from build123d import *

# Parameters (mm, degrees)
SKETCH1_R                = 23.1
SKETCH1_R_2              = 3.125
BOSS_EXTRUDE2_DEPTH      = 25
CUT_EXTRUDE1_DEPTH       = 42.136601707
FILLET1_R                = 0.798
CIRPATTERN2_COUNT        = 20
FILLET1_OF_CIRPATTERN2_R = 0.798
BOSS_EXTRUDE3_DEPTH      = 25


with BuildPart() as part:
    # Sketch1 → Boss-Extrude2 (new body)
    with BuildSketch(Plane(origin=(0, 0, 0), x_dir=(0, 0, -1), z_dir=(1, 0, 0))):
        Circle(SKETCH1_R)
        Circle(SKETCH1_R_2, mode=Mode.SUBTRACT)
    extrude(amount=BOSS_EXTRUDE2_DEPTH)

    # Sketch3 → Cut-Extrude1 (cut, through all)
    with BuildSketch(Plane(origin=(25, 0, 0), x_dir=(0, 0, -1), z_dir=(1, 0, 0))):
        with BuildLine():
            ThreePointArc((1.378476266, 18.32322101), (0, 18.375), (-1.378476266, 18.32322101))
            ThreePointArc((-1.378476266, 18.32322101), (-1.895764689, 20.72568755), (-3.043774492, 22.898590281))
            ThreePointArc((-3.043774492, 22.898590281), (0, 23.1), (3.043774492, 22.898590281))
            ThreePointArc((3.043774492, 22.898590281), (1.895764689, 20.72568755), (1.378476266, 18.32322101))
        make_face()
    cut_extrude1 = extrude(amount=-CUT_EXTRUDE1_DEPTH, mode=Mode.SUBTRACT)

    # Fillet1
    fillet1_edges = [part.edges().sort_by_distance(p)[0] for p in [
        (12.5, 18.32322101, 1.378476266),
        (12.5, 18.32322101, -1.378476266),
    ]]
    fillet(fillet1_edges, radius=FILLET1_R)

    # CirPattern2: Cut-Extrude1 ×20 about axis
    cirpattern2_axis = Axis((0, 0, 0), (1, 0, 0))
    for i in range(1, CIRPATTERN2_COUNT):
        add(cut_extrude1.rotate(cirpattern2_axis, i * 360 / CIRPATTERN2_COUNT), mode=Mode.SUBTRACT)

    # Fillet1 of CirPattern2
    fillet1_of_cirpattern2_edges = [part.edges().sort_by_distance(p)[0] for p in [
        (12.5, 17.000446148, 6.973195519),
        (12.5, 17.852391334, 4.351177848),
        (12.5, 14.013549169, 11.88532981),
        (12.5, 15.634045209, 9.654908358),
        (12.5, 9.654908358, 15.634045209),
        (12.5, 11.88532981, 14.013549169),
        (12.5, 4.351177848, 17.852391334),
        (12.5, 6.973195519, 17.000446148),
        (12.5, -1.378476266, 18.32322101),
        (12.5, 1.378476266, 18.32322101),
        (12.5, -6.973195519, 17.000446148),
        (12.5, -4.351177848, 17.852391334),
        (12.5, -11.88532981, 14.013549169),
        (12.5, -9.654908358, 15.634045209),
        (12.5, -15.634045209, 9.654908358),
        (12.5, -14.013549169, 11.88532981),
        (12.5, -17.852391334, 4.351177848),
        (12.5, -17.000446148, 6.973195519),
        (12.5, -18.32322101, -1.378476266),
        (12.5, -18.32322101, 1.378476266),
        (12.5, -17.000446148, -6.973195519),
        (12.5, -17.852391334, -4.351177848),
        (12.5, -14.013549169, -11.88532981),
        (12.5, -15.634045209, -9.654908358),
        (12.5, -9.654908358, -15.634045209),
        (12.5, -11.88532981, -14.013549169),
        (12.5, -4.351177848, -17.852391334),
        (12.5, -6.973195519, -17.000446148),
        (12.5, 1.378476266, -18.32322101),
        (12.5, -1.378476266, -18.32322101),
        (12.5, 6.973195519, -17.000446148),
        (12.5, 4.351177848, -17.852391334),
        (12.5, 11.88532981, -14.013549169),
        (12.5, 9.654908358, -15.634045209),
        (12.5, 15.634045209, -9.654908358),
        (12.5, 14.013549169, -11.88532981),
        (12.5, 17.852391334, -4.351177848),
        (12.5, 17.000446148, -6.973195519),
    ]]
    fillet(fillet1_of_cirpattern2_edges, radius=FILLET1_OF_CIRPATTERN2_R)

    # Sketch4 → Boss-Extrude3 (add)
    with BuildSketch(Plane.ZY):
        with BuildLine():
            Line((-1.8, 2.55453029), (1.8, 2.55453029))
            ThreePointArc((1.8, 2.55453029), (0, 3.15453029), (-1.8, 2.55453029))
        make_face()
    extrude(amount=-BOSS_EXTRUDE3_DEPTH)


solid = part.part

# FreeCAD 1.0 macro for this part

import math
import FreeCAD as App
import Part
import Sketcher
Q = App.Units.Quantity


def edges_at(feature, points):
    """Names of the edges that pass closest to the given points."""
    edges = feature.Shape.Edges
    near = lambda p: min(range(len(edges)), key=lambda i: edges[i].distToShape(Part.Vertex(*p))[0])
    return sorted({f"Edge{near(p) + 1}" for p in points})

doc = App.newDocument("Part")
body = doc.addObject("PartDesign::Body", "Body")

# Sketch on YZ plane
sketch1 = doc.addObject("Sketcher::SketchObject", "Sketch")
body.addObject(sketch1)
sketch1.AttachmentSupport = (doc.YZ_Plane, [""])
sketch1.MapMode = "FlatFace"
sketch1.addGeometry(Part.Circle(App.Vector(0, 0, 0), App.Vector(0, 0, 1), 23.1), False)
sketch1.addGeometry(Part.Circle(App.Vector(0, 0, 0), App.Vector(0, 0, 1), 3.125), False)
sketch1.addConstraint(Sketcher.Constraint("Coincident", 0, 3, -1, 1))
sketch1.addConstraint(Sketcher.Constraint("Coincident", 1, 3, -1, 1))
sketch1.addConstraint(Sketcher.Constraint("Diameter", 0, Q("46.2 mm")))
sketch1.addConstraint(Sketcher.Constraint("Diameter", 1, Q("6.25 mm")))
pad1 = doc.addObject("PartDesign::Pad", "Pad")
body.addObject(pad1)
pad1.Profile = sketch1
pad1.Length = 25

# Sketch on YZ plane
sketch2 = doc.addObject("Sketcher::SketchObject", "Sketch001")
body.addObject(sketch2)
sketch2.AttachmentSupport = (doc.YZ_Plane, [""])
sketch2.MapMode = "FlatFace"
sketch2.AttachmentOffset = App.Placement(App.Vector(0, 0, 25), App.Rotation())
sketch2.addGeometry(Part.ArcOfCircle(Part.Circle(App.Vector(0, 0, 0), App.Vector(0, 0, 1), 18.375), math.radians(-4.302321), math.radians(4.302321)), False)
sketch2.addGeometry(Part.ArcOfCircle(Part.Circle(App.Vector(17.648201, -10.351088, 0), App.Vector(0, 0, 1), 8.997967), math.radians(54.302321), math.radians(85.697679)), False)
sketch2.addGeometry(Part.ArcOfCircle(Part.Circle(App.Vector(0, 0, 0), App.Vector(0, 0, 1), 23.1), math.radians(-7.571604), math.radians(7.571604)), False)
sketch2.addGeometry(Part.ArcOfCircle(Part.Circle(App.Vector(17.648201, 10.351088, 0), App.Vector(0, 0, 1), 8.997967), math.radians(-85.697679), math.radians(-54.302321)), False)
sketch2.addConstraint(Sketcher.Constraint("Coincident", 0, 1, 1, 2))
sketch2.addConstraint(Sketcher.Constraint("Coincident", 1, 1, 2, 1))
sketch2.addConstraint(Sketcher.Constraint("Coincident", 2, 2, 3, 2))
sketch2.addConstraint(Sketcher.Constraint("Coincident", 3, 1, 0, 2))
sketch2.addConstraint(Sketcher.Constraint("Coincident", 0, 3, -1, 1))
sketch2.addConstraint(Sketcher.Constraint("Coincident", 2, 3, -1, 1))
sketch2.addConstraint(Sketcher.Constraint("Equal", 1, 3))
sketch2.addConstraint(Sketcher.Constraint("Symmetric", 1, 3, 3, 3, -1))
sketch2.addConstraint(Sketcher.Constraint("Radius", 2, Q("23.1 mm")))
sketch2.addConstraint(Sketcher.Constraint("Radius", 0, Q("18.375 mm")))
sketch2.addConstraint(Sketcher.Constraint("Radius", 1, Q("8.997967 mm")))
sketch2.addConstraint(Sketcher.Constraint("DistanceX", -1, 1, 1, 3, Q("17.648201 mm")))
sketch2.addConstraint(Sketcher.Constraint("DistanceY", 1, 1, 0, 1, Q("1.665298 mm")))
pocket1 = doc.addObject("PartDesign::Pocket", "Pocket")
body.addObject(pocket1)
pocket1.Profile = sketch2
pocket1.Type = "ThroughAll"
doc.recompute()

fillet = doc.addObject("PartDesign::Fillet", "Fillet")
body.addObject(fillet)
fillet.Base = (pocket1, edges_at(pocket1, [(12.5, 18.323, 1.378), (12.5, 18.323, -1.378)]))
fillet.Radius = 0.798
doc.recompute()

polarpattern = doc.addObject("PartDesign::PolarPattern", "PolarPattern")
body.addObject(polarpattern)
polarpattern.Originals = [pocket1]
polarpattern.Axis = (doc.X_Axis, [""])
polarpattern.Angle = 360
polarpattern.Occurrences = 20
body.Tip = polarpattern
doc.recompute()

fillet2 = doc.addObject("PartDesign::Fillet", "Fillet001")
body.addObject(fillet2)
fillet2.Base = (polarpattern, edges_at(polarpattern, [
    (12.5, 17, 6.973),
    (12.5, 17.852, 4.351),
    (12.5, 14.014, 11.885),
    (12.5, 15.634, 9.655),
    (12.5, 9.655, 15.634),
    (12.5, 11.885, 14.014),
    (12.5, 4.351, 17.852),
    (12.5, 6.973, 17),
    (12.5, -1.378, 18.323),
    (12.5, 1.378, 18.323),
    (12.5, -6.973, 17),
    (12.5, -4.351, 17.852),
    (12.5, -11.885, 14.014),
    (12.5, -9.655, 15.634),
    (12.5, -15.634, 9.655),
    (12.5, -14.014, 11.885),
    (12.5, -17.852, 4.351),
    (12.5, -17, 6.973),
    (12.5, -18.323, -1.378),
    (12.5, -18.323, 1.378),
    (12.5, -17, -6.973),
    (12.5, -17.852, -4.351),
    (12.5, -14.014, -11.885),
    (12.5, -15.634, -9.655),
    (12.5, -9.655, -15.634),
    (12.5, -11.885, -14.014),
    (12.5, -4.351, -17.852),
    (12.5, -6.973, -17),
    (12.5, 1.378, -18.323),
    (12.5, -1.378, -18.323),
    (12.5, 6.973, -17),
    (12.5, 4.351, -17.852),
    (12.5, 11.885, -14.014),
    (12.5, 9.655, -15.634),
    (12.5, 15.634, -9.655),
    (12.5, 14.014, -11.885),
    (12.5, 17.852, -4.351),
    (12.5, 17, -6.973),
]))
fillet2.Radius = 0.798

# Sketch on YZ plane
sketch3 = doc.addObject("Sketcher::SketchObject", "Sketch002")
body.addObject(sketch3)
sketch3.AttachmentSupport = (doc.YZ_Plane, [""])
sketch3.MapMode = "FlatFace"
sketch3.addGeometry(Part.LineSegment(App.Vector(2.55453, -1.8, 0), App.Vector(2.55453, 1.8, 0)), False)
sketch3.addGeometry(Part.ArcOfCircle(Part.Circle(App.Vector(0.15453, 0, 0), App.Vector(0, 0, 1), 3), math.radians(-36.869898), math.radians(36.869898)), False)
sketch3.addConstraint(Sketcher.Constraint("Coincident", 0, 1, 1, 1))
sketch3.addConstraint(Sketcher.Constraint("Coincident", 1, 2, 0, 2))
sketch3.addConstraint(Sketcher.Constraint("Vertical", 0))
sketch3.addConstraint(Sketcher.Constraint("PointOnObject", 1, 3, -1))
sketch3.addConstraint(Sketcher.Constraint("Radius", 1, Q("3 mm")))
sketch3.addConstraint(Sketcher.Constraint("DistanceY", 0, 1, 0, 2, Q("3.6 mm")))
sketch3.addConstraint(Sketcher.Constraint("DistanceX", -1, 1, 1, 3, Q("0.15453 mm")))
pad2 = doc.addObject("PartDesign::Pad", "Pad001")
body.addObject(pad2)
pad2.Profile = sketch3
pad2.Length = 25

doc.recompute()
